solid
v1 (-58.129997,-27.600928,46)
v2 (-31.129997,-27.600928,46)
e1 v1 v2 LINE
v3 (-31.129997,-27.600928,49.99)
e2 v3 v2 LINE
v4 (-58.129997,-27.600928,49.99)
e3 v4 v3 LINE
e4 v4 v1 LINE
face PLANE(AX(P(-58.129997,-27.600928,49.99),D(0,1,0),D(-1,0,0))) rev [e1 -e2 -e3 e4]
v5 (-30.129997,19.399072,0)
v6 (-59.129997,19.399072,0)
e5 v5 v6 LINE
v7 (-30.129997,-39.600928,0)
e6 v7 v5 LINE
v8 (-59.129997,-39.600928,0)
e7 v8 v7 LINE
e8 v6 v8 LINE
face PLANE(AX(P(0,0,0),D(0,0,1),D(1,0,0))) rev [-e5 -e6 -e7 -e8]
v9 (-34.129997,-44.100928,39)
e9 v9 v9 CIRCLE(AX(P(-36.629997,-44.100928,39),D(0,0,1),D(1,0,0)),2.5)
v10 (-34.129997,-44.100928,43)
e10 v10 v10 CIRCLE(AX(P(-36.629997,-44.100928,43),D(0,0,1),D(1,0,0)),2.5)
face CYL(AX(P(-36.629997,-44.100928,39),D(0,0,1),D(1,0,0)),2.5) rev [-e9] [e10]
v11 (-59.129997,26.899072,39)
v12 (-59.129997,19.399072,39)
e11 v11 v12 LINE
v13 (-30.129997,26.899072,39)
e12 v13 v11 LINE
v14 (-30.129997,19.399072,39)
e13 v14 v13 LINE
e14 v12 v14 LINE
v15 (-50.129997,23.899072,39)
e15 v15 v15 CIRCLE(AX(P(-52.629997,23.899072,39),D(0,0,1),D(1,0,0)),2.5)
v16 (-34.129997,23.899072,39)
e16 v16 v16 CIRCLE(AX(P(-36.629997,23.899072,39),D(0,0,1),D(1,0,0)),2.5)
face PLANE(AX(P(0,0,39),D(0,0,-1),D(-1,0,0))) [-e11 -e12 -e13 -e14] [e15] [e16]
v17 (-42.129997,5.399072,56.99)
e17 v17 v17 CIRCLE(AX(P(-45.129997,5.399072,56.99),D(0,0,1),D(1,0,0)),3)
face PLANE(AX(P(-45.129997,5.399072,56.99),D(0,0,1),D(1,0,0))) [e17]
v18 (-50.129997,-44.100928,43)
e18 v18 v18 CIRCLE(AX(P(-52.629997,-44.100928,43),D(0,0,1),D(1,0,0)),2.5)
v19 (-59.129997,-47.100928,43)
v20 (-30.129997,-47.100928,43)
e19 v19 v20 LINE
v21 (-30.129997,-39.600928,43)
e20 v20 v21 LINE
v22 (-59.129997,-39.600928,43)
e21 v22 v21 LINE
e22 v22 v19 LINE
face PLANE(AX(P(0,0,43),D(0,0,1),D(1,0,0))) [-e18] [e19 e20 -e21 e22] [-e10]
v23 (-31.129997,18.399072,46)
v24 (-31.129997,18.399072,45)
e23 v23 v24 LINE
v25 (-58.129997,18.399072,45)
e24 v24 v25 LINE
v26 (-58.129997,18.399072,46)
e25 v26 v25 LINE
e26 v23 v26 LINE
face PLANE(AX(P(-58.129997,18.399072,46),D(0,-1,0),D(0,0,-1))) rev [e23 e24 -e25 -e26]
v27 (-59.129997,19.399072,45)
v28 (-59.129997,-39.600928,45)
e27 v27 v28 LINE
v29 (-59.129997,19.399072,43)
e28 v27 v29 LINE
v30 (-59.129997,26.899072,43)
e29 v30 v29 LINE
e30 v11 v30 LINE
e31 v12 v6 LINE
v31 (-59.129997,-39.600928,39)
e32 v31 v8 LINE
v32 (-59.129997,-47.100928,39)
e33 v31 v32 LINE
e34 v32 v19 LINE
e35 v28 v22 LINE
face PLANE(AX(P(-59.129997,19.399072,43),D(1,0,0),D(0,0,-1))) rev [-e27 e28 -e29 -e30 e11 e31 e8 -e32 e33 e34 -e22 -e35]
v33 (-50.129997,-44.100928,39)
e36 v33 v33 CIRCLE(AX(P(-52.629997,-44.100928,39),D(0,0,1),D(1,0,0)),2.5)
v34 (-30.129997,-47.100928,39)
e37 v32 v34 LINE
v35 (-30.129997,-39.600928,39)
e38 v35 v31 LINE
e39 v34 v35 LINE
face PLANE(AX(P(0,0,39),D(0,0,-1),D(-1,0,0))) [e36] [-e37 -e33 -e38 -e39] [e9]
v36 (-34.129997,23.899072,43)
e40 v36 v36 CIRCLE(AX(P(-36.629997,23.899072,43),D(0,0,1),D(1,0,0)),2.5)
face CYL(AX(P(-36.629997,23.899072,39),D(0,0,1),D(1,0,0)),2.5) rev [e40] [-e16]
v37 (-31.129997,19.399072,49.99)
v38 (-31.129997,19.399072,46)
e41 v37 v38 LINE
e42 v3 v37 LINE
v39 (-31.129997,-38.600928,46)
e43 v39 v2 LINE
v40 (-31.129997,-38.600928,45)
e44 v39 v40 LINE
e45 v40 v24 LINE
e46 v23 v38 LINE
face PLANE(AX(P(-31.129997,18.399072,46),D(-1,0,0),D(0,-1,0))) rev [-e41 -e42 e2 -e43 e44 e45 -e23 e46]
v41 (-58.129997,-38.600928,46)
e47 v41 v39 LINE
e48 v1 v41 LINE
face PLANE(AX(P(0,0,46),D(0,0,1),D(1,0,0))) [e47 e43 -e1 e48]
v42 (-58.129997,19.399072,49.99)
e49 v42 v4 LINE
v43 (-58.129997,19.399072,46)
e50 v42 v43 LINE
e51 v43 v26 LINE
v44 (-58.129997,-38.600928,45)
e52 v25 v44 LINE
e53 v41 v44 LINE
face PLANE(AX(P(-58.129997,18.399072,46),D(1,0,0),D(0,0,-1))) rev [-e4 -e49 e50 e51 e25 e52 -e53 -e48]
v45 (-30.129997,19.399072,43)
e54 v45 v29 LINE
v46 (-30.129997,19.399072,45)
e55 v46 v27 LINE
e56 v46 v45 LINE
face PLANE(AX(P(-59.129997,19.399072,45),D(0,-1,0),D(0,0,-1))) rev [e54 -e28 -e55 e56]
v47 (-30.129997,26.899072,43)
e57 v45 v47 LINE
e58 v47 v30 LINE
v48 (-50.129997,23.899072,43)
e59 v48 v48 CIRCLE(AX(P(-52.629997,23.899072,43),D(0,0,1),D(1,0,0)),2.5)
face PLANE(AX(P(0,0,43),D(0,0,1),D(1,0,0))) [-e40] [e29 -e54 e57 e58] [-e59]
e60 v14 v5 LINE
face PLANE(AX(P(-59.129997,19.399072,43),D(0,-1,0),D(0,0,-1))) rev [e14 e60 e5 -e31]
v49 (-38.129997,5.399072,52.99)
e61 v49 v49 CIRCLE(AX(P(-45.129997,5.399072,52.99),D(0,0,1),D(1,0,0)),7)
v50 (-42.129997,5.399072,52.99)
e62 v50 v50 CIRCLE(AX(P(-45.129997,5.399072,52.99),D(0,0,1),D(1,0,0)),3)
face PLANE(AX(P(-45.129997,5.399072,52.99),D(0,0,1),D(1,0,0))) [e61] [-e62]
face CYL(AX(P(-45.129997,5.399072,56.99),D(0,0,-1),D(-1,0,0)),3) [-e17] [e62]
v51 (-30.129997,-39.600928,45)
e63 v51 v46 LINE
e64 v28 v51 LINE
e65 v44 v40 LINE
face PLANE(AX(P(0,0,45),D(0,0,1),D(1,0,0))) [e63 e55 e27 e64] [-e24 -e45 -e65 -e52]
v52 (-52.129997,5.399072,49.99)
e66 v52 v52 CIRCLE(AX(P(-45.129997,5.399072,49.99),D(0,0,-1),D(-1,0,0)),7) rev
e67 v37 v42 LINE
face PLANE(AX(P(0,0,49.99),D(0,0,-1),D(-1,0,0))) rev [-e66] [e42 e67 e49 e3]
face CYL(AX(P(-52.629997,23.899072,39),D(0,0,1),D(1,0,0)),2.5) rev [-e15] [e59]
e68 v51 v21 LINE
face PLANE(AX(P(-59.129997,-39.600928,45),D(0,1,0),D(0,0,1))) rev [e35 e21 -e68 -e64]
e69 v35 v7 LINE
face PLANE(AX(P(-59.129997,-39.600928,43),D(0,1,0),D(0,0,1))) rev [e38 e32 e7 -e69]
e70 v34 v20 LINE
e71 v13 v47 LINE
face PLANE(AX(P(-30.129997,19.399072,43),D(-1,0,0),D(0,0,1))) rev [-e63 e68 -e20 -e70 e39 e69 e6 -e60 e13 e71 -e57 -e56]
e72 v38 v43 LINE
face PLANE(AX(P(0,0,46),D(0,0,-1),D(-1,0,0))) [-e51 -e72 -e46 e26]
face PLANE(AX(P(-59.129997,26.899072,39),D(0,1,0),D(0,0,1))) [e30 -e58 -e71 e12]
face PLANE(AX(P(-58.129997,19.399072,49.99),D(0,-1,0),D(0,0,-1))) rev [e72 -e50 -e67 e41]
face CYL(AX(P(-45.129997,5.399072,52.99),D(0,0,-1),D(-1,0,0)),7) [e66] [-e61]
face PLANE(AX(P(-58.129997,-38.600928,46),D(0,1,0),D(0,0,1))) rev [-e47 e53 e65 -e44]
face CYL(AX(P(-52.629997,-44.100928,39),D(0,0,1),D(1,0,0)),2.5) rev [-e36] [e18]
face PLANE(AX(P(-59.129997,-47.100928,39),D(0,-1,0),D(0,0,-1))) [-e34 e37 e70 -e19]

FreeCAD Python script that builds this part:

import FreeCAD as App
import Part
import Sketcher
Q = App.Units.Quantity

doc = App.newDocument("Part")
body = doc.addObject("PartDesign::Body", "Body")

# Sketch on XY plane
sketch1 = body.newObject("Sketcher::SketchObject", "Sketch")
sketch1.AttachmentSupport = (doc.getObject("XY_Plane"), [""])
sketch1.MapMode = "FlatFace"
sketch1.addGeometry(Part.LineSegment(App.Vector(-59, 19, 0), App.Vector(-59, -40, 0)), False)
sketch1.addGeometry(Part.LineSegment(App.Vector(-59, -40, 0), App.Vector(-30, -40, 0)), False)
sketch1.addGeometry(Part.LineSegment(App.Vector(-30, -40, 0), App.Vector(-30, 19, 0)), False)
sketch1.addGeometry(Part.LineSegment(App.Vector(-30, 19, 0), App.Vector(-59, 19, 0)), False)
sketch1.addConstraint(Sketcher.Constraint("Coincident", 0, 2, 1, 1))
sketch1.addConstraint(Sketcher.Constraint("Coincident", 1, 2, 2, 1))
sketch1.addConstraint(Sketcher.Constraint("Coincident", 2, 2, 3, 1))
sketch1.addConstraint(Sketcher.Constraint("Coincident", 3, 2, 0, 1))
sketch1.addConstraint(Sketcher.Constraint("Vertical", 0))
sketch1.addConstraint(Sketcher.Constraint("Horizontal", 1))
sketch1.addConstraint(Sketcher.Constraint("Vertical", 2))
sketch1.addConstraint(Sketcher.Constraint("Horizontal", 3))
sketch1.addConstraint(Sketcher.Constraint("DistanceX", 1, 1, 1, 2, Q("29 mm")))
sketch1.addConstraint(Sketcher.Constraint("DistanceY", 0, 2, 0, 1, Q("59 mm")))
sketch1.addConstraint(Sketcher.Constraint("DistanceY", 0, 2, -1, 1, Q("39.600928 mm")))
sketch1.addConstraint(Sketcher.Constraint("DistanceX", 0, 2, -1, 1, Q("59.129997 mm")))
pad1 = body.newObject("PartDesign::Pad", "Pad")
pad1.Profile = sketch1
pad1.Length = 43

# Sketch on XY plane
sketch2 = body.newObject("Sketcher::SketchObject", "Sketch001")
sketch2.AttachmentSupport = (doc.getObject("XY_Plane"), [""])
sketch2.MapMode = "FlatFace"
sketch2.AttachmentOffset = App.Placement(App.Vector(0, 0, 43), App.Rotation())
sketch2.addGeometry(Part.LineSegment(App.Vector(-59, 27, 0), App.Vector(-59, -47, 0)), False)
sketch2.addGeometry(Part.LineSegment(App.Vector(-59, -47, 0), App.Vector(-30, -47, 0)), False)
sketch2.addGeometry(Part.LineSegment(App.Vector(-30, -47, 0), App.Vector(-30, 27, 0)), False)
sketch2.addGeometry(Part.LineSegment(App.Vector(-30, 27, 0), App.Vector(-59, 27, 0)), False)
sketch2.addConstraint(Sketcher.Constraint("Coincident", 0, 2, 1, 1))
sketch2.addConstraint(Sketcher.Constraint("Coincident", 1, 2, 2, 1))
sketch2.addConstraint(Sketcher.Constraint("Coincident", 2, 2, 3, 1))
sketch2.addConstraint(Sketcher.Constraint("Coincident", 3, 2, 0, 1))
sketch2.addConstraint(Sketcher.Constraint("Vertical", 0))
sketch2.addConstraint(Sketcher.Constraint("Horizontal", 1))
sketch2.addConstraint(Sketcher.Constraint("Vertical", 2))
sketch2.addConstraint(Sketcher.Constraint("Horizontal", 3))
sketch2.addConstraint(Sketcher.Constraint("DistanceX", 1, 1, 1, 2, Q("29 mm")))
sketch2.addConstraint(Sketcher.Constraint("DistanceY", 0, 2, 0, 1, Q("74 mm")))
sketch2.addConstraint(Sketcher.Constraint("DistanceY", 0, 2, -1, 1, Q("47.100928 mm")))
sketch2.addConstraint(Sketcher.Constraint("DistanceX", 0, 2, -1, 1, Q("59.129997 mm")))
pad2 = body.newObject("PartDesign::Pad", "Pad001")
pad2.Profile = sketch2
pad2.Length = 4
pad2.Reversed = True

# Sketch on XY plane
sketch3 = body.newObject("Sketcher::SketchObject", "Sketch002")
sketch3.AttachmentSupport = (doc.getObject("XY_Plane"), [""])
sketch3.MapMode = "FlatFace"
sketch3.AttachmentOffset = App.Placement(App.Vector(0, 0, 43), App.Rotation())
sketch3.addGeometry(Part.LineSegment(App.Vector(-59, 19, 0), App.Vector(-59, -40, 0)), False)
sketch3.addGeometry(Part.LineSegment(App.Vector(-59, -40, 0), App.Vector(-30, -40, 0)), False)
sketch3.addGeometry(Part.LineSegment(App.Vector(-30, -40, 0), App.Vector(-30, 19, 0)), False)
sketch3.addGeometry(Part.LineSegment(App.Vector(-30, 19, 0), App.Vector(-59, 19, 0)), False)
sketch3.addConstraint(Sketcher.Constraint("Coincident", 0, 2, 1, 1))
sketch3.addConstraint(Sketcher.Constraint("Coincident", 1, 2, 2, 1))
sketch3.addConstraint(Sketcher.Constraint("Coincident", 2, 2, 3, 1))
sketch3.addConstraint(Sketcher.Constraint("Coincident", 3, 2, 0, 1))
sketch3.addConstraint(Sketcher.Constraint("Vertical", 0))
sketch3.addConstraint(Sketcher.Constraint("Horizontal", 1))
sketch3.addConstraint(Sketcher.Constraint("Vertical", 2))
sketch3.addConstraint(Sketcher.Constraint("Horizontal", 3))
sketch3.addConstraint(Sketcher.Constraint("DistanceX", 1, 1, 1, 2, Q("29 mm")))
sketch3.addConstraint(Sketcher.Constraint("DistanceY", 0, 2, 0, 1, Q("59 mm")))
sketch3.addConstraint(Sketcher.Constraint("DistanceY", 0, 2, -1, 1, Q("39.600928 mm")))
sketch3.addConstraint(Sketcher.Constraint("DistanceX", 0, 2, -1, 1, Q("59.129997 mm")))
pad3 = body.newObject("PartDesign::Pad", "Pad002")
pad3.Profile = sketch3
pad3.Length = 2

# Sketch on XY plane
sketch4 = body.newObject("Sketcher::SketchObject", "Sketch003")
sketch4.AttachmentSupport = (doc.getObject("XY_Plane"), [""])
sketch4.MapMode = "FlatFace"
sketch4.AttachmentOffset = App.Placement(App.Vector(0, 0, 45), App.Rotation())
sketch4.addGeometry(Part.LineSegment(App.Vector(-58, 18, 0), App.Vector(-58, -39, 0)), False)
sketch4.addGeometry(Part.LineSegment(App.Vector(-58, -39, 0), App.Vector(-31, -39, 0)), False)
sketch4.addGeometry(Part.LineSegment(App.Vector(-31, -39, 0), App.Vector(-31, 18, 0)), False)
sketch4.addGeometry(Part.LineSegment(App.Vector(-31, 18, 0), App.Vector(-58, 18, 0)), False)
sketch4.addConstraint(Sketcher.Constraint("Coincident", 0, 2, 1, 1))
sketch4.addConstraint(Sketcher.Constraint("Coincident", 1, 2, 2, 1))
sketch4.addConstraint(Sketcher.Constraint("Coincident", 2, 2, 3, 1))
sketch4.addConstraint(Sketcher.Constraint("Coincident", 3, 2, 0, 1))
sketch4.addConstraint(Sketcher.Constraint("Vertical", 0))
sketch4.addConstraint(Sketcher.Constraint("Horizontal", 1))
sketch4.addConstraint(Sketcher.Constraint("Vertical", 2))
sketch4.addConstraint(Sketcher.Constraint("Horizontal", 3))
sketch4.addConstraint(Sketcher.Constraint("DistanceX", 1, 1, 1, 2, Q("27 mm")))
sketch4.addConstraint(Sketcher.Constraint("DistanceY", 0, 2, 0, 1, Q("57 mm")))
sketch4.addConstraint(Sketcher.Constraint("DistanceY", 0, 2, -1, 1, Q("38.600928 mm")))
sketch4.addConstraint(Sketcher.Constraint("DistanceX", 0, 2, -1, 1, Q("58.129997 mm")))
pad4 = body.newObject("PartDesign::Pad", "Pad003")
pad4.Profile = sketch4
pad4.Length = 1

# Sketch on XY plane
sketch5 = body.newObject("Sketcher::SketchObject", "Sketch004")
sketch5.AttachmentSupport = (doc.getObject("XY_Plane"), [""])
sketch5.MapMode = "FlatFace"
sketch5.AttachmentOffset = App.Placement(App.Vector(0, 0, 46), App.Rotation())
sketch5.addGeometry(Part.LineSegment(App.Vector(-58, 19, 0), App.Vector(-58, -28, 0)), False)
sketch5.addGeometry(Part.LineSegment(App.Vector(-58, -28, 0), App.Vector(-31, -28, 0)), False)
sketch5.addGeometry(Part.LineSegment(App.Vector(-31, -28, 0), App.Vector(-31, 19, 0)), False)
sketch5.addGeometry(Part.LineSegment(App.Vector(-31, 19, 0), App.Vector(-58, 19, 0)), False)
sketch5.addConstraint(Sketcher.Constraint("Coincident", 0, 2, 1, 1))
sketch5.addConstraint(Sketcher.Constraint("Coincident", 1, 2, 2, 1))
sketch5.addConstraint(Sketcher.Constraint("Coincident", 2, 2, 3, 1))
sketch5.addConstraint(Sketcher.Constraint("Coincident", 3, 2, 0, 1))
sketch5.addConstraint(Sketcher.Constraint("Vertical", 0))
sketch5.addConstraint(Sketcher.Constraint("Horizontal", 1))
sketch5.addConstraint(Sketcher.Constraint("Vertical", 2))
sketch5.addConstraint(Sketcher.Constraint("Horizontal", 3))
sketch5.addConstraint(Sketcher.Constraint("DistanceX", 1, 1, 1, 2, Q("27 mm")))
sketch5.addConstraint(Sketcher.Constraint("DistanceY", 0, 2, 0, 1, Q("47 mm")))
sketch5.addConstraint(Sketcher.Constraint("DistanceY", 0, 2, -1, 1, Q("27.600928 mm")))
sketch5.addConstraint(Sketcher.Constraint("DistanceX", 0, 2, -1, 1, Q("58.129997 mm")))
pad5 = body.newObject("PartDesign::Pad", "Pad004")
pad5.Profile = sketch5
pad5.Length = 3.99

# Sketch on XY plane
sketch6 = body.newObject("Sketcher::SketchObject", "Sketch005")
sketch6.AttachmentSupport = (doc.getObject("XY_Plane"), [""])
sketch6.MapMode = "FlatFace"
sketch6.AttachmentOffset = App.Placement(App.Vector(0, 0, 49.99), App.Rotation())
sketch6.addGeometry(Part.Circle(App.Vector(-45, 5, 0), App.Vector(0, 0, 1), 7), False)
sketch6.addConstraint(Sketcher.Constraint("Diameter", 0, Q("14 mm")))
sketch6.addConstraint(Sketcher.Constraint("DistanceY", -1, 1, 0, 3, Q("5.399072 mm")))
sketch6.addConstraint(Sketcher.Constraint("DistanceX", 0, 3, -1, 1, Q("45.129997 mm")))
pad6 = body.newObject("PartDesign::Pad", "Pad005")
pad6.Profile = sketch6
pad6.Length = 3

# Sketch on XY plane
sketch7 = body.newObject("Sketcher::SketchObject", "Sketch006")
sketch7.AttachmentSupport = (doc.getObject("XY_Plane"), [""])
sketch7.MapMode = "FlatFace"
sketch7.AttachmentOffset = App.Placement(App.Vector(0, 0, 52.99), App.Rotation())
sketch7.addGeometry(Part.Circle(App.Vector(-45.1, 5.4, 0), App.Vector(0, 0, 1), 3), False)
sketch7.addConstraint(Sketcher.Constraint("Diameter", 0, Q("6 mm")))
sketch7.addConstraint(Sketcher.Constraint("DistanceY", -1, 1, 0, 3, Q("5.399072 mm")))
sketch7.addConstraint(Sketcher.Constraint("DistanceX", 0, 3, -1, 1, Q("45.129997 mm")))
pad7 = body.newObject("PartDesign::Pad", "Pad006")
pad7.Profile = sketch7
pad7.Length = 4

# Sketch on XY plane
sketch8 = body.newObject("Sketcher::SketchObject", "Sketch007")
sketch8.AttachmentSupport = (doc.getObject("XY_Plane"), [""])
sketch8.MapMode = "FlatFace"
sketch8.AttachmentOffset = App.Placement(App.Vector(0, 0, 43), App.Rotation())
sketch8.addGeometry(Part.Circle(App.Vector(-36.6, 23.9, 0), App.Vector(0, 0, 1), 2.5), False)
sketch8.addGeometry(Part.Circle(App.Vector(-52.6, 23.9, 0), App.Vector(0, 0, 1), 2.5), False)
sketch8.addGeometry(Part.Circle(App.Vector(-52.6, -44.1, 0), App.Vector(0, 0, 1), 2.5), False)
sketch8.addGeometry(Part.Circle(App.Vector(-36.6, -44.1, 0), App.Vector(0, 0, 1), 2.5), False)
sketch8.addConstraint(Sketcher.Constraint("Equal", 0, 1))
sketch8.addConstraint(Sketcher.Constraint("Equal", 1, 2))
sketch8.addConstraint(Sketcher.Constraint("Equal", 2, 3))
sketch8.addConstraint(Sketcher.Constraint("Horizontal", 0, 3, 1, 3))
sketch8.addConstraint(Sketcher.Constraint("Horizontal", 2, 3, 3, 3))
sketch8.addConstraint(Sketcher.Constraint("Vertical", 1, 3, 2, 3))
sketch8.addConstraint(Sketcher.Constraint("Vertical", 0, 3, 3, 3))
sketch8.addConstraint(Sketcher.Constraint("Diameter", 0, Q("5 mm")))
sketch8.addConstraint(Sketcher.Constraint("DistanceX", 1, 3, 0, 3, Q("16 mm")))
sketch8.addConstraint(Sketcher.Constraint("DistanceY", 2, 3, 1, 3, Q("68 mm")))
sketch8.addConstraint(Sketcher.Constraint("DistanceY", -1, 1, 0, 3, Q("23.899072 mm")))
sketch8.addConstraint(Sketcher.Constraint("DistanceX", 0, 3, -1, 1, Q("36.629997 mm")))
pocket1 = body.newObject("PartDesign::Pocket", "Pocket")
pocket1.Profile = sketch8
pocket1.Length = 4

doc.recompute()
